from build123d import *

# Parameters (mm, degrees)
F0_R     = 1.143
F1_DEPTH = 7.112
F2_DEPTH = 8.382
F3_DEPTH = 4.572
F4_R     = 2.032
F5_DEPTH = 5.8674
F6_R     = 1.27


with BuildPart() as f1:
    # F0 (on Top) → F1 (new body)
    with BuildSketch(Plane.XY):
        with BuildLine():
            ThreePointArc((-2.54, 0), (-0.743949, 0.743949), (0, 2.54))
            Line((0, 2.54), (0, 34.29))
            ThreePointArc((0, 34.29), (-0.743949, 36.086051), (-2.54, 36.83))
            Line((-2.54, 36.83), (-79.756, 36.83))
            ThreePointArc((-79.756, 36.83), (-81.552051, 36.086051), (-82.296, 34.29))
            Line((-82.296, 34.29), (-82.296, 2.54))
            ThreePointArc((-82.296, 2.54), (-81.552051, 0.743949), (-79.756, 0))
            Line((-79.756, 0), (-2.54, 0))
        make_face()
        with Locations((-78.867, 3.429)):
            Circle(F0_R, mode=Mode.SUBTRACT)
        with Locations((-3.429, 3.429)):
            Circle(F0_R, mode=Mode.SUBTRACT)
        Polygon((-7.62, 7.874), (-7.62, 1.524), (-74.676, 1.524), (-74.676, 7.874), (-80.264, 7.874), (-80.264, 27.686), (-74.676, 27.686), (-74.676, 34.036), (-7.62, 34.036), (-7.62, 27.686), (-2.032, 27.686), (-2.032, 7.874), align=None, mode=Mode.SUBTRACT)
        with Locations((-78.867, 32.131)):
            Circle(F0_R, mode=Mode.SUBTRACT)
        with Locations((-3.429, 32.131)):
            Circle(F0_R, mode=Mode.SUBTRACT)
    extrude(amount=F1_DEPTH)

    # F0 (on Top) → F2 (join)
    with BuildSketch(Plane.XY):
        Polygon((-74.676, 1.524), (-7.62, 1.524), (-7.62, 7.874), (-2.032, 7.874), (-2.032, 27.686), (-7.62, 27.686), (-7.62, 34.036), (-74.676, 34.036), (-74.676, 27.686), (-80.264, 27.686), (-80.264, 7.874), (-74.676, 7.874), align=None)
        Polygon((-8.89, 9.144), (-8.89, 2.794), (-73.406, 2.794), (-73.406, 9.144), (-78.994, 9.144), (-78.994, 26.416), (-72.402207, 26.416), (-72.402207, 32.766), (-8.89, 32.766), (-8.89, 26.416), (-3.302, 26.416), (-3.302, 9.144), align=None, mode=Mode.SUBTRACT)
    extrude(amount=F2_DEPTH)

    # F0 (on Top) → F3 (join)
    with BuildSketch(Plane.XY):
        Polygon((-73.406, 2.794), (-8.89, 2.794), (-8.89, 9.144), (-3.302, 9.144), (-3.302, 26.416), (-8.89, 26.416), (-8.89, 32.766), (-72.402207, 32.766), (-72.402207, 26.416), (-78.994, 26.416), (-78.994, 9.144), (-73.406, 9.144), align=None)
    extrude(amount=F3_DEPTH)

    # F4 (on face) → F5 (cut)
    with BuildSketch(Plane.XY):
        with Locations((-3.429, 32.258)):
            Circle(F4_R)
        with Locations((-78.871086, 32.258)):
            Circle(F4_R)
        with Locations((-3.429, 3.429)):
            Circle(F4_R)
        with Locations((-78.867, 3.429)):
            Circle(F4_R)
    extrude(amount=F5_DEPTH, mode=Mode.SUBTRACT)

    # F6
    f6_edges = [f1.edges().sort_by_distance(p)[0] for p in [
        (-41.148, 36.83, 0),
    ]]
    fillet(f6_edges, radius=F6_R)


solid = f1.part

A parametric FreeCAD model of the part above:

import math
import FreeCAD as App
import Part
import Sketcher

V = App.Vector
Q = App.Units.Quantity


def edges_at(feature, points):
    """Names of the edges that pass closest to the given points."""
    edges = feature.Shape.Edges
    near = lambda p: min(range(len(edges)), key=lambda i: edges[i].distToShape(Part.Vertex(*p))[0])
    return sorted({f"Edge{near(p) + 1}" for p in points})

doc = App.newDocument("Part")
body = doc.addObject("PartDesign::Body", "Body")

sketch1 = body.newObject("Sketcher::SketchObject", "Sketch")
sketch1.AttachmentSupport = (doc.getObject("XY_Plane"), [""])
sketch1.MapMode = "FlatFace"
sketch1.addGeometry([
    Part.ArcOfCircle(Part.Circle(V(-2.5, 2.5, 0), V(0, 0, 1), 2.5), math.radians(-90), math.radians(0)),
    Part.LineSegment(V(0, 2.5, 0), V(0, 34.3, 0)),
    Part.ArcOfCircle(Part.Circle(V(-2.5, 34.3, 0), V(0, 0, 1), 2.5), math.radians(0), math.radians(90)),
    Part.LineSegment(V(-2.5, 36.8, 0), V(-79.8, 36.8, 0)),
    Part.ArcOfCircle(Part.Circle(V(-79.8, 34.3, 0), V(0, 0, 1), 2.5), math.radians(90), math.radians(180)),
    Part.LineSegment(V(-82.3, 34.3, 0), V(-82.3, 2.5, 0)),
    Part.ArcOfCircle(Part.Circle(V(-79.8, 2.5, 0), V(0, 0, 1), 2.5), math.radians(-180), math.radians(-90)),
    Part.LineSegment(V(-79.8, 0, 0), V(-2.5, 0, 0)),
    Part.Circle(V(-78.9, 3.4, 0), V(0, 0, 1), 1.1),
    Part.Circle(V(-3.4, 3.4, 0), V(0, 0, 1), 1.1),
    Part.Circle(V(-78.9, 32.1, 0), V(0, 0, 1), 1.1),
    Part.LineSegment(V(-2, 7.9, 0), V(-7.6, 7.9, 0)),
    Part.LineSegment(V(-7.6, 7.9, 0), V(-7.6, 1.5, 0)),
    Part.LineSegment(V(-7.6, 1.5, 0), V(-74.7, 1.5, 0)),
    Part.LineSegment(V(-74.7, 1.5, 0), V(-74.7, 7.9, 0)),
    Part.LineSegment(V(-74.7, 7.9, 0), V(-80.3, 7.9, 0)),
    Part.LineSegment(V(-80.3, 7.9, 0), V(-80.3, 27.7, 0)),
    Part.LineSegment(V(-80.3, 27.7, 0), V(-74.7, 27.7, 0)),
    Part.LineSegment(V(-74.7, 27.7, 0), V(-74.7, 34, 0)),
    Part.LineSegment(V(-74.7, 34, 0), V(-7.6, 34, 0)),
    Part.LineSegment(V(-7.6, 34, 0), V(-7.6, 27.7, 0)),
    Part.LineSegment(V(-7.6, 27.7, 0), V(-2, 27.7, 0)),
    Part.LineSegment(V(-2, 27.7, 0), V(-2, 7.9, 0)),
    Part.Circle(V(-3.4, 32.1, 0), V(0, 0, 1), 1.1),
], False)
sketch1.addConstraint([
    Sketcher.Constraint("Tangent", 0, 2, 1, 1),
    Sketcher.Constraint("Tangent", 1, 2, 2, 1),
    Sketcher.Constraint("Tangent", 2, 2, 3, 1),
    Sketcher.Constraint("Tangent", 3, 2, 4, 1),
    Sketcher.Constraint("Tangent", 4, 2, 5, 1),
    Sketcher.Constraint("Tangent", 5, 2, 6, 1),
    Sketcher.Constraint("Tangent", 6, 2, 7, 1),
    Sketcher.Constraint("Tangent", 7, 2, 0, 1),
    Sketcher.Constraint("Coincident", 11, 2, 12, 1),
    Sketcher.Constraint("Coincident", 12, 2, 13, 1),
    Sketcher.Constraint("Coincident", 13, 2, 14, 1),
    Sketcher.Constraint("Coincident", 14, 2, 15, 1),
    Sketcher.Constraint("Coincident", 15, 2, 16, 1),
    Sketcher.Constraint("Coincident", 16, 2, 17, 1),
    Sketcher.Constraint("Coincident", 17, 2, 18, 1),
    Sketcher.Constraint("Coincident", 18, 2, 19, 1),
    Sketcher.Constraint("Coincident", 19, 2, 20, 1),
    Sketcher.Constraint("Coincident", 20, 2, 21, 1),
    Sketcher.Constraint("Coincident", 21, 2, 22, 1),
    Sketcher.Constraint("Coincident", 22, 2, 11, 1),
    Sketcher.Constraint("Vertical", 1),
    Sketcher.Constraint("Horizontal", 3),
    Sketcher.Constraint("Vertical", 5),
    Sketcher.Constraint("Horizontal", 7),
    Sketcher.Constraint("Horizontal", 11),
    Sketcher.Constraint("Vertical", 12),
    Sketcher.Constraint("Horizontal", 13),
    Sketcher.Constraint("Vertical", 14),
    Sketcher.Constraint("Horizontal", 15),
    Sketcher.Constraint("Vertical", 16),
    Sketcher.Constraint("Horizontal", 17),
    Sketcher.Constraint("Vertical", 18),
    Sketcher.Constraint("Horizontal", 19),
    Sketcher.Constraint("Vertical", 20),
    Sketcher.Constraint("Horizontal", 21),
    Sketcher.Constraint("Vertical", 22),
    Sketcher.Constraint("Equal", 0, 2),
    Sketcher.Constraint("Equal", 2, 4),
    Sketcher.Constraint("Equal", 4, 6),
    Sketcher.Constraint("Equal", 8, 9),
    Sketcher.Constraint("Equal", 9, 10),
    Sketcher.Constraint("Equal", 10, 23),
    Sketcher.Constraint("PointOnObject", 0, 2, -2),
    Sketcher.Constraint("PointOnObject", 6, 2, -1),
    Sketcher.Constraint("Horizontal", 8, 3, 9, 3),
    Sketcher.Constraint("Horizontal", 10, 3, 23, 3),
    Sketcher.Constraint("Horizontal", 11, 2, 14, 2),
    Sketcher.Constraint("Horizontal", 17, 2, 20, 2),
    Sketcher.Constraint("Vertical", 8, 3, 10, 3),
    Sketcher.Constraint("Vertical", 9, 3, 23, 3),
    Sketcher.Constraint("Vertical", 14, 2, 17, 2),
    Sketcher.Constraint("Vertical", 12, 2, 19, 2),
    Sketcher.Constraint("Equal", 11, 15),
    Sketcher.Constraint("Equal", 14, 18),
    Sketcher.Constraint("Radius", 0, Q("0.1 in")),
    Sketcher.Constraint("Diameter", 8, Q("0.09 in")),
    Sketcher.Constraint("DistanceX", 3, 2, 3, 1, Q("3.04 in")),
    Sketcher.Constraint("DistanceX", 11, 2, 11, 1, Q("0.22 in")),
    Sketcher.Constraint("DistanceX", 13, 2, 13, 1, Q("2.64 in")),
    Sketcher.Constraint("DistanceY", 1, 1, 1, 2, Q("1.25 in")),
    Sketcher.Constraint("DistanceY", 12, 2, 12, 1, Q("0.25 in")),
    Sketcher.Constraint("DistanceY", 16, 1, 16, 2, Q("0.78 in")),
    Sketcher.Constraint("DistanceX", 11, 2, -1, 1, Q("0.3 in")),
    Sketcher.Constraint("DistanceY", -1, 1, 11, 2, Q("0.31 in")),
    Sketcher.Constraint("DistanceX", 8, 3, 9, 3, Q("2.97 in")),
    Sketcher.Constraint("DistanceY", 8, 3, 10, 3, Q("1.13 in")),
    Sketcher.Constraint("DistanceX", 8, 3, -1, 1, Q("3.105 in")),
    Sketcher.Constraint("DistanceY", -1, 1, 8, 3, Q("0.135 in")),
])
pad1 = body.newObject("PartDesign::Pad", "Pad")
pad1.Profile = sketch1
pad1.Length = Q("0.28 in")

sketch2 = body.newObject("Sketcher::SketchObject", "Sketch001")
sketch2.AttachmentSupport = (doc.getObject("XY_Plane"), [""])
sketch2.MapMode = "FlatFace"
sketch2.addGeometry([
    Part.LineSegment(V(-75, 2, 0), V(-8, 2, 0)),
    Part.LineSegment(V(-8, 2, 0), V(-8, 8, 0)),
    Part.LineSegment(V(-8, 8, 0), V(-2, 8, 0)),
    Part.LineSegment(V(-2, 8, 0), V(-2, 28, 0)),
    Part.LineSegment(V(-2, 28, 0), V(-8, 28, 0)),
    Part.LineSegment(V(-8, 28, 0), V(-8, 34, 0)),
    Part.LineSegment(V(-8, 34, 0), V(-75, 34, 0)),
    Part.LineSegment(V(-75, 34, 0), V(-75, 28, 0)),
    Part.LineSegment(V(-75, 28, 0), V(-80, 28, 0)),
    Part.LineSegment(V(-80, 28, 0), V(-80, 8, 0)),
    Part.LineSegment(V(-80, 8, 0), V(-75, 8, 0)),
    Part.LineSegment(V(-75, 8, 0), V(-75, 2, 0)),
    Part.LineSegment(V(-3, 9, 0), V(-9, 9, 0)),
    Part.LineSegment(V(-9, 9, 0), V(-9, 3, 0)),
    Part.LineSegment(V(-9, 3, 0), V(-73, 3, 0)),
    Part.LineSegment(V(-73, 3, 0), V(-73, 9, 0)),
    Part.LineSegment(V(-73, 9, 0), V(-79, 9, 0)),
    Part.LineSegment(V(-79, 9, 0), V(-79, 26, 0)),
    Part.LineSegment(V(-79, 26, 0), V(-72, 26, 0)),
    Part.LineSegment(V(-72, 26, 0), V(-72, 33, 0)),
    Part.LineSegment(V(-72, 33, 0), V(-9, 33, 0)),
    Part.LineSegment(V(-9, 33, 0), V(-9, 26, 0)),
    Part.LineSegment(V(-9, 26, 0), V(-3, 26, 0)),
    Part.LineSegment(V(-3, 26, 0), V(-3, 9, 0)),
], False)
sketch2.addConstraint([
    Sketcher.Constraint("Coincident", 0, 2, 1, 1),
    Sketcher.Constraint("Coincident", 1, 2, 2, 1),
    Sketcher.Constraint("Coincident", 2, 2, 3, 1),
    Sketcher.Constraint("Coincident", 3, 2, 4, 1),
    Sketcher.Constraint("Coincident", 4, 2, 5, 1),
    Sketcher.Constraint("Coincident", 5, 2, 6, 1),
    Sketcher.Constraint("Coincident", 6, 2, 7, 1),
    Sketcher.Constraint("Coincident", 7, 2, 8, 1),
    Sketcher.Constraint("Coincident", 8, 2, 9, 1),
    Sketcher.Constraint("Coincident", 9, 2, 10, 1),
    Sketcher.Constraint("Coincident", 10, 2, 11, 1),
    Sketcher.Constraint("Coincident", 11, 2, 0, 1),
    Sketcher.Constraint("Coincident", 12, 2, 13, 1),
    Sketcher.Constraint("Coincident", 13, 2, 14, 1),
    Sketcher.Constraint("Coincident", 14, 2, 15, 1),
    Sketcher.Constraint("Coincident", 15, 2, 16, 1),
    Sketcher.Constraint("Coincident", 16, 2, 17, 1),
    Sketcher.Constraint("Coincident", 17, 2, 18, 1),
    Sketcher.Constraint("Coincident", 18, 2, 19, 1),
    Sketcher.Constraint("Coincident", 19, 2, 20, 1),
    Sketcher.Constraint("Coincident", 20, 2, 21, 1),
    Sketcher.Constraint("Coincident", 21, 2, 22, 1),
    Sketcher.Constraint("Coincident", 22, 2, 23, 1),
    Sketcher.Constraint("Coincident", 23, 2, 12, 1),
    Sketcher.Constraint("Horizontal", 0),
    Sketcher.Constraint("Vertical", 1),
    Sketcher.Constraint("Horizontal", 2),
    Sketcher.Constraint("Vertical", 3),
    Sketcher.Constraint("Horizontal", 4),
    Sketcher.Constraint("Vertical", 5),
    Sketcher.Constraint("Horizontal", 6),
    Sketcher.Constraint("Vertical", 7),
    Sketcher.Constraint("Horizontal", 8),
    Sketcher.Constraint("Vertical", 9),
    Sketcher.Constraint("Horizontal", 10),
    Sketcher.Constraint("Vertical", 11),
    Sketcher.Constraint("Horizontal", 12),
    Sketcher.Constraint("Vertical", 13),
    Sketcher.Constraint("Horizontal", 14),
    Sketcher.Constraint("Vertical", 15),
    Sketcher.Constraint("Horizontal", 16),
    Sketcher.Constraint("Vertical", 17),
    Sketcher.Constraint("Horizontal", 18),
    Sketcher.Constraint("Vertical", 19),
    Sketcher.Constraint("Horizontal", 20),
    Sketcher.Constraint("Vertical", 21),
    Sketcher.Constraint("Horizontal", 22),
    Sketcher.Constraint("Vertical", 23),
    Sketcher.Constraint("Horizontal", 4, 2, 7, 2),
    Sketcher.Constraint("Horizontal", 2, 2, 9, 2),
    Sketcher.Constraint("Horizontal", 12, 2, 15, 2),
    Sketcher.Constraint("Horizontal", 18, 2, 21, 2),
    Sketcher.Constraint("Vertical", 1, 2, 4, 2),
    Sketcher.Constraint("Vertical", 7, 2, 10, 2),
    Sketcher.Constraint("Vertical", 13, 2, 20, 2),
    Sketcher.Constraint("Equal", 4, 8),
    Sketcher.Constraint("Equal", 10, 12),
    Sketcher.Constraint("Equal", 12, 16),
    Sketcher.Constraint("Equal", 1, 5),
    Sketcher.Constraint("Equal", 11, 13),
    Sketcher.Constraint("Equal", 15, 19),
    Sketcher.Constraint("DistanceX", 0, 1, 0, 2, Q("2.64 in")),
    Sketcher.Constraint("DistanceX", 2, 1, 2, 2, Q("0.22 in")),
    Sketcher.Constraint("DistanceX", 14, 2, 14, 1, Q("2.54 in")),
    Sketcher.Constraint("DistanceY", 1, 1, 1, 2, Q("0.25 in")),
    Sketcher.Constraint("DistanceY", 3, 1, 3, 2, Q("0.78 in")),
    Sketcher.Constraint("DistanceY", 17, 1, 17, 2, Q("0.68 in")),
    Sketcher.Constraint("DistanceX", 0, 2, -1, 1, Q("0.3 in")),
    Sketcher.Constraint("DistanceY", 0, 2, 12, 2, Q("0.3 in")),
    Sketcher.Constraint("DistanceY", -1, 1, 0, 2, Q("0.06 in")),
    Sketcher.Constraint("DistanceX", 12, 2, -1, 1, Q("0.35 in")),
    Sketcher.Constraint("DistanceX", 18, 1, 18, 2, Q("6.591793 mm")),
])
pad2 = body.newObject("PartDesign::Pad", "Pad001")
pad2.Profile = sketch2
pad2.Length = Q("0.33 in")

sketch3 = body.newObject("Sketcher::SketchObject", "Sketch002")
sketch3.AttachmentSupport = (doc.getObject("XY_Plane"), [""])
sketch3.MapMode = "FlatFace"
sketch3.addGeometry([
    Part.LineSegment(V(-73, 3, 0), V(-9, 3, 0)),
    Part.LineSegment(V(-9, 3, 0), V(-9, 9, 0)),
    Part.LineSegment(V(-9, 9, 0), V(-3, 9, 0)),
    Part.LineSegment(V(-3, 9, 0), V(-3, 26, 0)),
    Part.LineSegment(V(-3, 26, 0), V(-9, 26, 0)),
    Part.LineSegment(V(-9, 26, 0), V(-9, 33, 0)),
    Part.LineSegment(V(-9, 33, 0), V(-72, 33, 0)),
    Part.LineSegment(V(-72, 33, 0), V(-72, 26, 0)),
    Part.LineSegment(V(-72, 26, 0), V(-79, 26, 0)),
    Part.LineSegment(V(-79, 26, 0), V(-79, 9, 0)),
    Part.LineSegment(V(-79, 9, 0), V(-73, 9, 0)),
    Part.LineSegment(V(-73, 9, 0), V(-73, 3, 0)),
], False)
sketch3.addConstraint([
    Sketcher.Constraint("Coincident", 0, 2, 1, 1),
    Sketcher.Constraint("Coincident", 1, 2, 2, 1),
    Sketcher.Constraint("Coincident", 2, 2, 3, 1),
    Sketcher.Constraint("Coincident", 3, 2, 4, 1),
    Sketcher.Constraint("Coincident", 4, 2, 5, 1),
    Sketcher.Constraint("Coincident", 5, 2, 6, 1),
    Sketcher.Constraint("Coincident", 6, 2, 7, 1),
    Sketcher.Constraint("Coincident", 7, 2, 8, 1),
    Sketcher.Constraint("Coincident", 8, 2, 9, 1),
    Sketcher.Constraint("Coincident", 9, 2, 10, 1),
    Sketcher.Constraint("Coincident", 10, 2, 11, 1),
    Sketcher.Constraint("Coincident", 11, 2, 0, 1),
    Sketcher.Constraint("Horizontal", 0),
    Sketcher.Constraint("Vertical", 1),
    Sketcher.Constraint("Horizontal", 2),
    Sketcher.Constraint("Vertical", 3),
    Sketcher.Constraint("Horizontal", 4),
    Sketcher.Constraint("Vertical", 5),
    Sketcher.Constraint("Horizontal", 6),
    Sketcher.Constraint("Vertical", 7),
    Sketcher.Constraint("Horizontal", 8),
    Sketcher.Constraint("Vertical", 9),
    Sketcher.Constraint("Horizontal", 10),
    Sketcher.Constraint("Vertical", 11),
    Sketcher.Constraint("Horizontal", 4, 2, 7, 2),
    Sketcher.Constraint("Horizontal", 2, 2, 9, 2),
    Sketcher.Constraint("Vertical", 1, 2, 4, 2),
    Sketcher.Constraint("Equal", 4, 10),
    Sketcher.Constraint("Equal", 1, 5),
    Sketcher.Constraint("DistanceX", 0, 1, 0, 2, Q("2.54 in")),
    Sketcher.Constraint("DistanceX", 2, 1, 2, 2, Q("0.22 in")),
    Sketcher.Constraint("DistanceY", 1, 1, 1, 2, Q("0.25 in")),
    Sketcher.Constraint("DistanceY", 3, 1, 3, 2, Q("0.68 in")),
    Sketcher.Constraint("DistanceX", 0, 2, -1, 1, Q("0.35 in")),
    Sketcher.Constraint("DistanceY", -1, 1, 0, 2, Q("0.11 in")),
    Sketcher.Constraint("DistanceX", 6, 2, 6, 1, Q("63.512207 mm")),
])
pad3 = body.newObject("PartDesign::Pad", "Pad002")
pad3.Profile = sketch3
pad3.Length = Q("0.18 in")

sketch4 = body.newObject("Sketcher::SketchObject", "Sketch003")
sketch4.AttachmentSupport = (doc.getObject("XY_Plane"), [""])
sketch4.MapMode = "FlatFace"
sketch4.addGeometry([
    Part.Circle(V(-3.4, 32.3, 0), V(0, 0, 1), 2),
    Part.Circle(V(-78.9, 32.3, 0), V(0, 0, 1), 2),
    Part.Circle(V(-3.4, 3.4, 0), V(0, 0, 1), 2),
    Part.Circle(V(-78.9, 3.4, 0), V(0, 0, 1), 2),
], False)
sketch4.addConstraint([
    Sketcher.Constraint("Equal", 0, 1),
    Sketcher.Constraint("Equal", 1, 2),
    Sketcher.Constraint("Equal", 2, 3),
    Sketcher.Constraint("Horizontal", 0, 3, 1, 3),
    Sketcher.Constraint("Horizontal", 2, 3, 3, 3),
    Sketcher.Constraint("Vertical", 0, 3, 2, 3),
    Sketcher.Constraint("Diameter", 0, Q("0.16 in")),
    Sketcher.Constraint("DistanceY", -1, 1, 0, 3, Q("1.27 in")),
    Sketcher.Constraint("DistanceX", 3, 3, 2, 3, Q("2.97 in")),
    Sketcher.Constraint("DistanceX", 0, 3, -1, 1, Q("0.135 in")),
    Sketcher.Constraint("DistanceY", -1, 1, 2, 3, Q("0.135 in")),
    Sketcher.Constraint("DistanceX", 1, 3, -1, 1, Q("78.871086 mm")),
])
pocket1 = body.newObject("PartDesign::Pocket", "Pocket")
pocket1.Profile = sketch4
pocket1.Length = Q("0.231 in")
pocket1.Reversed = True
doc.recompute()

fillet = body.newObject("PartDesign::Fillet", "Fillet")
fillet.Base = (pocket1, edges_at(pocket1, [(-41.148, 36.83, 0)]))
fillet.Radius = Q("0.05 in")

doc.recompute()
